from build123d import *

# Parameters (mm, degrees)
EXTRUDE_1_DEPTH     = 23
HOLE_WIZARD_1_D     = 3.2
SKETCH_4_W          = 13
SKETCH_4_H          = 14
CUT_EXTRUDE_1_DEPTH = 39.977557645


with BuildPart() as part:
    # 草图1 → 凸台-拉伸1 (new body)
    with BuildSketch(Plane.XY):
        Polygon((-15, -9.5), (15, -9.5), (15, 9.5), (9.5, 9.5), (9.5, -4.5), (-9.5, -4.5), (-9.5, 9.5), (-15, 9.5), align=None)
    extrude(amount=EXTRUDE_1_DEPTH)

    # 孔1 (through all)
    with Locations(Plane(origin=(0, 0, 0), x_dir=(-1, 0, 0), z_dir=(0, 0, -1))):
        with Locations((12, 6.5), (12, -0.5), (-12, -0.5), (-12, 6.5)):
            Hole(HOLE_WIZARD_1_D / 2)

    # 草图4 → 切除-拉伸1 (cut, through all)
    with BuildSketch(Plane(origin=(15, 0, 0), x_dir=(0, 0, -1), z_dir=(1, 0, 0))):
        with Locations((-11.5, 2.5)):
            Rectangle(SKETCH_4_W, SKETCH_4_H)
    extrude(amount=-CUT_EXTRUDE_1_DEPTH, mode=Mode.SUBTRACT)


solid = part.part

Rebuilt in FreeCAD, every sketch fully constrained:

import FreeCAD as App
import Part
import Sketcher
Q = App.Units.Quantity


def add_polygon(sketch, points):
    """Adds a closed chain of lines whose ends are joined by coincident constraints."""
    first, n = sketch.GeometryCount, len(points)
    for a, b in zip(points, points[1:] + points[:1]):
        sketch.addGeometry(Part.LineSegment(App.Vector(*a, 0), App.Vector(*b, 0)), False)
    for i in range(n):
        sketch.addConstraint(Sketcher.Constraint("Coincident", first + i, 2, first + (i + 1) % n, 1))

doc = App.newDocument("Part")
body = doc.addObject("PartDesign::Body", "Body")

# Sketch on XY plane
sketch1 = body.newObject("Sketcher::SketchObject", "Sketch")
sketch1.AttachmentSupport = (doc.getObject("XY_Plane"), [""])
sketch1.MapMode = "FlatFace"
add_polygon(sketch1, [(-15, -10), (15, -10), (15, 10), (10, 10), (10, -4), (-10, -4), (-10, 10), (-15, 10)])  # lines 0-7
sketch1.addConstraint([
    Sketcher.Constraint("Horizontal", 0),
    Sketcher.Constraint("Vertical", 1),
    Sketcher.Constraint("Horizontal", 2),
    Sketcher.Constraint("Vertical", 3),
    Sketcher.Constraint("Horizontal", 4),
    Sketcher.Constraint("Vertical", 5),
    Sketcher.Constraint("Horizontal", 6),
    Sketcher.Constraint("Vertical", 7),
    Sketcher.Constraint("Symmetric", 0, 2, 6, 2, -1, 1),
    Sketcher.Constraint("Symmetric", 2, 2, 5, 2, -2),
    Sketcher.Constraint("Equal", 4, 1),
    Sketcher.Constraint("DistanceX", 0, 1, 0, 2, Q("30 mm")),
    Sketcher.Constraint("DistanceX", 4, 2, 4, 1, Q("19 mm")),
    Sketcher.Constraint("DistanceY", 3, 2, 3, 1, Q("14 mm")),
])
pad1 = body.newObject("PartDesign::Pad", "Pad")
pad1.Profile = sketch1
pad1.Length = 23

# Sketch on XY plane
sketch2 = body.newObject("Sketcher::SketchObject", "Sketch001")
sketch2.AttachmentSupport = (doc.getObject("XY_Plane"), [""])
sketch2.MapMode = "FlatFace"
sketch2.addGeometry([
    Part.Circle(App.Vector(-12, 6.5, 0), App.Vector(0, 0, 1), 1.6),
    Part.Circle(App.Vector(-12, -0.5, 0), App.Vector(0, 0, 1), 1.6),
    Part.Circle(App.Vector(12, -0.5, 0), App.Vector(0, 0, 1), 1.6),
    Part.Circle(App.Vector(12, 6.5, 0), App.Vector(0, 0, 1), 1.6),
], False)
sketch2.addConstraint([
    Sketcher.Constraint("Equal", 0, 1),
    Sketcher.Constraint("Equal", 1, 2),
    Sketcher.Constraint("Equal", 2, 3),
    Sketcher.Constraint("Symmetric", 1, 3, 2, 3, -2),
    Sketcher.Constraint("Symmetric", 0, 3, 3, 3, -2),
    Sketcher.Constraint("Vertical", 0, 3, 1, 3),
    Sketcher.Constraint("Diameter", 0, Q("3.2 mm")),
    Sketcher.Constraint("DistanceX", 0, 3, -1, 1, Q("12 mm")),
    Sketcher.Constraint("DistanceY", 1, 3, 0, 3, Q("7 mm")),
    Sketcher.Constraint("DistanceY", -1, 1, 0, 3, Q("6.5 mm")),
])
doc.recompute()
hole = body.newObject("PartDesign::Hole", "Hole")
hole.Profile = sketch2
hole.ThreadType = "None"
hole.Diameter = 3.2
hole.DepthType = "ThroughAll"
hole.Reversed = True

# Sketch on YZ plane
sketch3 = body.newObject("Sketcher::SketchObject", "Sketch002")
sketch3.AttachmentSupport = (doc.getObject("YZ_Plane"), [""])
sketch3.MapMode = "FlatFace"
sketch3.AttachmentOffset = App.Placement(App.Vector(0, 0, 15), App.Rotation())
add_polygon(sketch3, [(10, 18), (-4, 18), (-4, 5), (10, 5)])  # lines 0-3
sketch3.addConstraint([
    Sketcher.Constraint("Horizontal", 0),
    Sketcher.Constraint("Vertical", 1),
    Sketcher.Constraint("Horizontal", 2),
    Sketcher.Constraint("Vertical", 3),
    Sketcher.Constraint("DistanceX", 0, 2, 0, 1, Q("14 mm")),
    Sketcher.Constraint("DistanceY", 1, 2, 1, 1, Q("13 mm")),
    Sketcher.Constraint("DistanceY", -1, 1, 0, 2, Q("18 mm")),
    Sketcher.Constraint("DistanceX", 0, 2, -1, 1, Q("4.5 mm")),
])
pocket1 = body.newObject("PartDesign::Pocket", "Pocket")
pocket1.Profile = sketch3
pocket1.Type = "ThroughAll"

doc.recompute()
